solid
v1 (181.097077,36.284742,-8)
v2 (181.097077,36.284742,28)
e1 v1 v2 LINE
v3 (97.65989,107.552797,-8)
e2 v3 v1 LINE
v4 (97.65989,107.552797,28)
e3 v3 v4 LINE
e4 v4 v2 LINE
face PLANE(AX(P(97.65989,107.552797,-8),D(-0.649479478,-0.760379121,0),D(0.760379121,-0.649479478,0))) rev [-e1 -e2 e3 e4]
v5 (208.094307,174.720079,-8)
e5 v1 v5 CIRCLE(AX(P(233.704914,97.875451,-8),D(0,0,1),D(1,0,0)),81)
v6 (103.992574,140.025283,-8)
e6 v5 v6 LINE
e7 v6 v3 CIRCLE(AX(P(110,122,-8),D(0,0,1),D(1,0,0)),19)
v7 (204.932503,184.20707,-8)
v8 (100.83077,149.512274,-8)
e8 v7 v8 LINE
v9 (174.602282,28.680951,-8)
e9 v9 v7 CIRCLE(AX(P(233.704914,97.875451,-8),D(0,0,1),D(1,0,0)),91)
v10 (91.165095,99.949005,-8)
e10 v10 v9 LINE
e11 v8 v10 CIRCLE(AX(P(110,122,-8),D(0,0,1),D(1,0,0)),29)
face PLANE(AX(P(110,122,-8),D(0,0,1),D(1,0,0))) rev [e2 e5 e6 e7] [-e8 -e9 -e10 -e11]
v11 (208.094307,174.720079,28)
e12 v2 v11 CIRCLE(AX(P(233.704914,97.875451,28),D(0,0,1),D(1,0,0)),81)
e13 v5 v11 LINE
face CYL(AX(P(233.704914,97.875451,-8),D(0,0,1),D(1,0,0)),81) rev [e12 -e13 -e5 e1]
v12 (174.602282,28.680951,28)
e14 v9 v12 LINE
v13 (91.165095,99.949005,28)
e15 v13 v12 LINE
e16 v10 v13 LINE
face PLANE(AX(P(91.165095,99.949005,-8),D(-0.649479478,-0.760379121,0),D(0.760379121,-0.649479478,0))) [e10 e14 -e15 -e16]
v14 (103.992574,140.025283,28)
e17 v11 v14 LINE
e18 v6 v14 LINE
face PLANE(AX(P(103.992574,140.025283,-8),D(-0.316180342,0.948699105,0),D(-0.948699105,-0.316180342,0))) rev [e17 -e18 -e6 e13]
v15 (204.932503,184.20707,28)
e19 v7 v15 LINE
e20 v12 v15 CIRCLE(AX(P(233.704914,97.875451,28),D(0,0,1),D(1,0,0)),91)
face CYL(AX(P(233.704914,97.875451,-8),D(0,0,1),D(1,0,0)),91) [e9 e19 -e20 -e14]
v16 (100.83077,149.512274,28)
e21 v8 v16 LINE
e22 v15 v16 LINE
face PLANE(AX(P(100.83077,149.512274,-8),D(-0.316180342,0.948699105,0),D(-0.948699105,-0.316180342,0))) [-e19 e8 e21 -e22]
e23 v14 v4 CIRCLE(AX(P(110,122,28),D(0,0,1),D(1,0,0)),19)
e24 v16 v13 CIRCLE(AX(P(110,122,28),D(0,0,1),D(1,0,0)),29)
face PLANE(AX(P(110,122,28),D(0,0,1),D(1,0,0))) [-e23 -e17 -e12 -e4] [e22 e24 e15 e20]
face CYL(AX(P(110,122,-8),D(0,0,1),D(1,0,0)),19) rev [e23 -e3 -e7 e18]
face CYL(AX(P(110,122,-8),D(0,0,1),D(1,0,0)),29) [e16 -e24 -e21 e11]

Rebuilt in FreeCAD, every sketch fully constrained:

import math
import FreeCAD as App
import Part
import Sketcher
from FreeCAD import Vector

doc = App.newDocument("Part")
body = doc.addObject("PartDesign::Body", "Body")

# Sketch on XY plane
sketch1 = body.newObject("Sketcher::SketchObject", "Sketch")
sketch1.AttachmentSupport = (doc.getObject("XY_Plane"), [""])
sketch1.MapMode = "FlatFace"
sketch1.addGeometry([
    Part.LineSegment(Vector(91.165095, 99.949005, 0), Vector(174.602282, 28.680951, 0)),  # 0
    Part.ArcOfCircle(Part.Circle(Vector(233.704914, 97.875451, 0), Vector(0, 0, 1), 91), math.radians(-130.502368), math.radians(108.432085)),  # 1
    Part.LineSegment(Vector(204.932503, 184.20707, 0), Vector(100.83077, 149.512274, 0)),  # 2
    Part.ArcOfCircle(Part.Circle(Vector(110, 122, 0), Vector(0, 0, 1), 29), math.radians(108.432085), math.radians(229.497632)),  # 3
    Part.LineSegment(Vector(181.097077, 36.284742, 0), Vector(97.65989, 107.552797, 0)),  # 4
    Part.ArcOfCircle(Part.Circle(Vector(110, 122, 0), Vector(0, 0, 1), 19), math.radians(108.432085), math.radians(229.497632)),  # 5
    Part.LineSegment(Vector(103.992574, 140.025283, 0), Vector(208.094307, 174.720079, 0)),  # 6
    Part.ArcOfCircle(Part.Circle(Vector(233.704914, 97.875451, 0), Vector(0, 0, 1), 81), math.radians(-130.502368), math.radians(108.432085)),  # 7
], False)
sketch1.addConstraint([
    Sketcher.Constraint("Tangent", 0, 2, 1, 1),
    Sketcher.Constraint("Tangent", 1, 2, 2, 1),
    Sketcher.Constraint("Tangent", 2, 2, 3, 1),
    Sketcher.Constraint("Tangent", 3, 2, 0, 1),
    Sketcher.Constraint("Tangent", 4, 2, 5, 2),
    Sketcher.Constraint("Tangent", 5, 1, 6, 1),
    Sketcher.Constraint("Tangent", 6, 2, 7, 2),
    Sketcher.Constraint("Tangent", 7, 1, 4, 1),
    Sketcher.Constraint("Coincident", 5, 3, 3, 3),
    Sketcher.Constraint("Coincident", 7, 3, 1, 3),
    Sketcher.Constraint("Parallel", 0, 4),
    Sketcher.Constraint("Radius", 1, 91.0),
    Sketcher.Constraint("Radius", 3, 29.0),
    Sketcher.Constraint("Radius", 5, 19.0),
    Sketcher.Constraint("DistanceX", -1, 1, 3, 3, 110.0),
    Sketcher.Constraint("DistanceY", -1, 1, 3, 3, 122.0),
    Sketcher.Constraint("DistanceY", 0, 2, 1, 3, 69.1945),
    Sketcher.Constraint("DistanceY", -1, 1, 1, 3, 97.875451),
])
pad1 = body.newObject("PartDesign::Pad", "Pad")
pad1.Profile = sketch1
pad1.Type = "TwoLengths"
pad1.Length = 28
pad1.Length2 = 8

doc.recompute()
